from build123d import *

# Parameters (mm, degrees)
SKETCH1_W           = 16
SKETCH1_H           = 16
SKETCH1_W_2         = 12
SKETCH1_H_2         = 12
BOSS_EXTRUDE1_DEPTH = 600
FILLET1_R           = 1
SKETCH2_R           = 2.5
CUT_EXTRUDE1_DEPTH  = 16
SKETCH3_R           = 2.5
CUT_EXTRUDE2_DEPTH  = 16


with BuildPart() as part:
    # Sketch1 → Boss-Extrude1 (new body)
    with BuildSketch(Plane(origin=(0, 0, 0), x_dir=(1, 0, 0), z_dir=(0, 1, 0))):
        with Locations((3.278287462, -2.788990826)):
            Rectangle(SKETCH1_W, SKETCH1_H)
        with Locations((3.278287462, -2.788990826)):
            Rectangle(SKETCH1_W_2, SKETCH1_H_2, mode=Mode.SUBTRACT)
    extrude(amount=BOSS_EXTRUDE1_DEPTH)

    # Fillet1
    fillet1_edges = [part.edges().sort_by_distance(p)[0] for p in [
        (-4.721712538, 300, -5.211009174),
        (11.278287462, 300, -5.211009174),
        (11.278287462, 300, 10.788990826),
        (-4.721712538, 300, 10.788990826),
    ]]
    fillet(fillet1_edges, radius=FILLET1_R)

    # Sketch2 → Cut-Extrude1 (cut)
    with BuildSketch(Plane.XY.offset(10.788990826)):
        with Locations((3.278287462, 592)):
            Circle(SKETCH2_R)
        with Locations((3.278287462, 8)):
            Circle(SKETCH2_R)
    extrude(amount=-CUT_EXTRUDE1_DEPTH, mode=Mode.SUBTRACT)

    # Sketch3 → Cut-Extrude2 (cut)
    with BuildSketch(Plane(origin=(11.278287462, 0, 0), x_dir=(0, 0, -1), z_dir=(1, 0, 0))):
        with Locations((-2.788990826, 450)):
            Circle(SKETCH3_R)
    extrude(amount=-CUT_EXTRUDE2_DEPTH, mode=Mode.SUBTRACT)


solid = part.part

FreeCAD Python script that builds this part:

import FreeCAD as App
import Part
import Sketcher

V = App.Vector


def edges_at(feature, points):
    """Names of the edges that pass closest to the given points."""
    edges = feature.Shape.Edges
    near = lambda p: min(range(len(edges)), key=lambda i: edges[i].distToShape(Part.Vertex(*p))[0])
    return sorted({f"Edge{near(p) + 1}" for p in points})

doc = App.newDocument("Part")
body = doc.addObject("PartDesign::Body", "Body")

# Sketch on XZ plane
sketch1 = body.newObject("Sketcher::SketchObject", "Sketch")
sketch1.AttachmentSupport = (doc.getObject("XZ_Plane"), [""])
sketch1.MapMode = "FlatFace"
sketch1.addGeometry(Part.LineSegment(V(-5, -5, 0), V(-5, 11, 0)), False)
sketch1.addGeometry(Part.LineSegment(V(-5, 11, 0), V(11, 11, 0)), False)
sketch1.addGeometry(Part.LineSegment(V(11, 11, 0), V(11, -5, 0)), False)
sketch1.addGeometry(Part.LineSegment(V(11, -5, 0), V(-5, -5, 0)), False)
sketch1.addGeometry(Part.LineSegment(V(9, 9, 0), V(-3, 9, 0)), False)
sketch1.addGeometry(Part.LineSegment(V(-3, 9, 0), V(-3, -3, 0)), False)
sketch1.addGeometry(Part.LineSegment(V(-3, -3, 0), V(9, -3, 0)), False)
sketch1.addGeometry(Part.LineSegment(V(9, -3, 0), V(9, 9, 0)), False)
sketch1.addConstraint(Sketcher.Constraint("Coincident", 0, 2, 1, 1))
sketch1.addConstraint(Sketcher.Constraint("Coincident", 1, 2, 2, 1))
sketch1.addConstraint(Sketcher.Constraint("Coincident", 2, 2, 3, 1))
sketch1.addConstraint(Sketcher.Constraint("Coincident", 3, 2, 0, 1))
sketch1.addConstraint(Sketcher.Constraint("Coincident", 4, 2, 5, 1))
sketch1.addConstraint(Sketcher.Constraint("Coincident", 5, 2, 6, 1))
sketch1.addConstraint(Sketcher.Constraint("Coincident", 6, 2, 7, 1))
sketch1.addConstraint(Sketcher.Constraint("Coincident", 7, 2, 4, 1))
sketch1.addConstraint(Sketcher.Constraint("Vertical", 0))
sketch1.addConstraint(Sketcher.Constraint("Horizontal", 1))
sketch1.addConstraint(Sketcher.Constraint("Vertical", 2))
sketch1.addConstraint(Sketcher.Constraint("Horizontal", 3))
sketch1.addConstraint(Sketcher.Constraint("Horizontal", 4))
sketch1.addConstraint(Sketcher.Constraint("Vertical", 5))
sketch1.addConstraint(Sketcher.Constraint("Horizontal", 6))
sketch1.addConstraint(Sketcher.Constraint("Vertical", 7))
sketch1.addConstraint(Sketcher.Constraint("Equal", 3, 0))
sketch1.addConstraint(Sketcher.Constraint("Equal", 6, 5))
sketch1.addConstraint(Sketcher.Constraint("DistanceX", 1, 1, 1, 2, 16.0))
sketch1.addConstraint(Sketcher.Constraint("DistanceX", 4, 2, 4, 1, 12.0))
sketch1.addConstraint(Sketcher.Constraint("DistanceX", 0, 2, 4, 2, 2.0))
sketch1.addConstraint(Sketcher.Constraint("DistanceY", 4, 2, 0, 2, 2.0))
sketch1.addConstraint(Sketcher.Constraint("DistanceY", -1, 1, 0, 2, 10.788991))
sketch1.addConstraint(Sketcher.Constraint("DistanceX", 0, 2, -1, 1, 4.721713))
pad1 = body.newObject("PartDesign::Pad", "Pad")
pad1.Profile = sketch1
pad1.Length = 600
pad1.Reversed = True
doc.recompute()

fillet = body.newObject("PartDesign::Fillet", "Fillet")
fillet.Base = (pad1, edges_at(pad1, [
    (-4.722, 300, -5.211),
    (11.278, 300, -5.211),
    (11.278, 300, 10.789),
    (-4.722, 300, 10.789),
]))
fillet.Radius = 1

# Sketch on XY plane
sketch2 = body.newObject("Sketcher::SketchObject", "Sketch001")
sketch2.AttachmentSupport = (doc.getObject("XY_Plane"), [""])
sketch2.MapMode = "FlatFace"
sketch2.AttachmentOffset = App.Placement(V(0, 0, 10.788991), App.Rotation())
sketch2.addGeometry(Part.Circle(V(3.3, 592, 0), V(0, 0, 1), 2.5), False)
sketch2.addGeometry(Part.Circle(V(3.3, 8, 0), V(0, 0, 1), 2.5), False)
sketch2.addConstraint(Sketcher.Constraint("Equal", 0, 1))
sketch2.addConstraint(Sketcher.Constraint("Vertical", 0, 3, 1, 3))
sketch2.addConstraint(Sketcher.Constraint("Diameter", 0, 5.0))
sketch2.addConstraint(Sketcher.Constraint("DistanceY", -1, 1, 0, 3, 592.0))
sketch2.addConstraint(Sketcher.Constraint("DistanceY", -1, 1, 1, 3, 8.0))
sketch2.addConstraint(Sketcher.Constraint("DistanceX", -1, 1, 0, 3, 3.278287))
pocket1 = body.newObject("PartDesign::Pocket", "Pocket")
pocket1.Profile = sketch2
pocket1.Length = 16

# Sketch on YZ plane
sketch3 = body.newObject("Sketcher::SketchObject", "Sketch002")
sketch3.AttachmentSupport = (doc.getObject("YZ_Plane"), [""])
sketch3.MapMode = "FlatFace"
sketch3.AttachmentOffset = App.Placement(V(0, 0, 11.278287), App.Rotation())
sketch3.addGeometry(Part.Circle(V(450, 2.8, 0), V(0, 0, 1), 2.5), False)
sketch3.addConstraint(Sketcher.Constraint("Diameter", 0, 5.0))
sketch3.addConstraint(Sketcher.Constraint("DistanceX", -1, 1, 0, 3, 450.0))
sketch3.addConstraint(Sketcher.Constraint("DistanceY", -1, 1, 0, 3, 2.788991))
pocket2 = body.newObject("PartDesign::Pocket", "Pocket001")
pocket2.Profile = sketch3
pocket2.Length = 16

doc.recompute()
